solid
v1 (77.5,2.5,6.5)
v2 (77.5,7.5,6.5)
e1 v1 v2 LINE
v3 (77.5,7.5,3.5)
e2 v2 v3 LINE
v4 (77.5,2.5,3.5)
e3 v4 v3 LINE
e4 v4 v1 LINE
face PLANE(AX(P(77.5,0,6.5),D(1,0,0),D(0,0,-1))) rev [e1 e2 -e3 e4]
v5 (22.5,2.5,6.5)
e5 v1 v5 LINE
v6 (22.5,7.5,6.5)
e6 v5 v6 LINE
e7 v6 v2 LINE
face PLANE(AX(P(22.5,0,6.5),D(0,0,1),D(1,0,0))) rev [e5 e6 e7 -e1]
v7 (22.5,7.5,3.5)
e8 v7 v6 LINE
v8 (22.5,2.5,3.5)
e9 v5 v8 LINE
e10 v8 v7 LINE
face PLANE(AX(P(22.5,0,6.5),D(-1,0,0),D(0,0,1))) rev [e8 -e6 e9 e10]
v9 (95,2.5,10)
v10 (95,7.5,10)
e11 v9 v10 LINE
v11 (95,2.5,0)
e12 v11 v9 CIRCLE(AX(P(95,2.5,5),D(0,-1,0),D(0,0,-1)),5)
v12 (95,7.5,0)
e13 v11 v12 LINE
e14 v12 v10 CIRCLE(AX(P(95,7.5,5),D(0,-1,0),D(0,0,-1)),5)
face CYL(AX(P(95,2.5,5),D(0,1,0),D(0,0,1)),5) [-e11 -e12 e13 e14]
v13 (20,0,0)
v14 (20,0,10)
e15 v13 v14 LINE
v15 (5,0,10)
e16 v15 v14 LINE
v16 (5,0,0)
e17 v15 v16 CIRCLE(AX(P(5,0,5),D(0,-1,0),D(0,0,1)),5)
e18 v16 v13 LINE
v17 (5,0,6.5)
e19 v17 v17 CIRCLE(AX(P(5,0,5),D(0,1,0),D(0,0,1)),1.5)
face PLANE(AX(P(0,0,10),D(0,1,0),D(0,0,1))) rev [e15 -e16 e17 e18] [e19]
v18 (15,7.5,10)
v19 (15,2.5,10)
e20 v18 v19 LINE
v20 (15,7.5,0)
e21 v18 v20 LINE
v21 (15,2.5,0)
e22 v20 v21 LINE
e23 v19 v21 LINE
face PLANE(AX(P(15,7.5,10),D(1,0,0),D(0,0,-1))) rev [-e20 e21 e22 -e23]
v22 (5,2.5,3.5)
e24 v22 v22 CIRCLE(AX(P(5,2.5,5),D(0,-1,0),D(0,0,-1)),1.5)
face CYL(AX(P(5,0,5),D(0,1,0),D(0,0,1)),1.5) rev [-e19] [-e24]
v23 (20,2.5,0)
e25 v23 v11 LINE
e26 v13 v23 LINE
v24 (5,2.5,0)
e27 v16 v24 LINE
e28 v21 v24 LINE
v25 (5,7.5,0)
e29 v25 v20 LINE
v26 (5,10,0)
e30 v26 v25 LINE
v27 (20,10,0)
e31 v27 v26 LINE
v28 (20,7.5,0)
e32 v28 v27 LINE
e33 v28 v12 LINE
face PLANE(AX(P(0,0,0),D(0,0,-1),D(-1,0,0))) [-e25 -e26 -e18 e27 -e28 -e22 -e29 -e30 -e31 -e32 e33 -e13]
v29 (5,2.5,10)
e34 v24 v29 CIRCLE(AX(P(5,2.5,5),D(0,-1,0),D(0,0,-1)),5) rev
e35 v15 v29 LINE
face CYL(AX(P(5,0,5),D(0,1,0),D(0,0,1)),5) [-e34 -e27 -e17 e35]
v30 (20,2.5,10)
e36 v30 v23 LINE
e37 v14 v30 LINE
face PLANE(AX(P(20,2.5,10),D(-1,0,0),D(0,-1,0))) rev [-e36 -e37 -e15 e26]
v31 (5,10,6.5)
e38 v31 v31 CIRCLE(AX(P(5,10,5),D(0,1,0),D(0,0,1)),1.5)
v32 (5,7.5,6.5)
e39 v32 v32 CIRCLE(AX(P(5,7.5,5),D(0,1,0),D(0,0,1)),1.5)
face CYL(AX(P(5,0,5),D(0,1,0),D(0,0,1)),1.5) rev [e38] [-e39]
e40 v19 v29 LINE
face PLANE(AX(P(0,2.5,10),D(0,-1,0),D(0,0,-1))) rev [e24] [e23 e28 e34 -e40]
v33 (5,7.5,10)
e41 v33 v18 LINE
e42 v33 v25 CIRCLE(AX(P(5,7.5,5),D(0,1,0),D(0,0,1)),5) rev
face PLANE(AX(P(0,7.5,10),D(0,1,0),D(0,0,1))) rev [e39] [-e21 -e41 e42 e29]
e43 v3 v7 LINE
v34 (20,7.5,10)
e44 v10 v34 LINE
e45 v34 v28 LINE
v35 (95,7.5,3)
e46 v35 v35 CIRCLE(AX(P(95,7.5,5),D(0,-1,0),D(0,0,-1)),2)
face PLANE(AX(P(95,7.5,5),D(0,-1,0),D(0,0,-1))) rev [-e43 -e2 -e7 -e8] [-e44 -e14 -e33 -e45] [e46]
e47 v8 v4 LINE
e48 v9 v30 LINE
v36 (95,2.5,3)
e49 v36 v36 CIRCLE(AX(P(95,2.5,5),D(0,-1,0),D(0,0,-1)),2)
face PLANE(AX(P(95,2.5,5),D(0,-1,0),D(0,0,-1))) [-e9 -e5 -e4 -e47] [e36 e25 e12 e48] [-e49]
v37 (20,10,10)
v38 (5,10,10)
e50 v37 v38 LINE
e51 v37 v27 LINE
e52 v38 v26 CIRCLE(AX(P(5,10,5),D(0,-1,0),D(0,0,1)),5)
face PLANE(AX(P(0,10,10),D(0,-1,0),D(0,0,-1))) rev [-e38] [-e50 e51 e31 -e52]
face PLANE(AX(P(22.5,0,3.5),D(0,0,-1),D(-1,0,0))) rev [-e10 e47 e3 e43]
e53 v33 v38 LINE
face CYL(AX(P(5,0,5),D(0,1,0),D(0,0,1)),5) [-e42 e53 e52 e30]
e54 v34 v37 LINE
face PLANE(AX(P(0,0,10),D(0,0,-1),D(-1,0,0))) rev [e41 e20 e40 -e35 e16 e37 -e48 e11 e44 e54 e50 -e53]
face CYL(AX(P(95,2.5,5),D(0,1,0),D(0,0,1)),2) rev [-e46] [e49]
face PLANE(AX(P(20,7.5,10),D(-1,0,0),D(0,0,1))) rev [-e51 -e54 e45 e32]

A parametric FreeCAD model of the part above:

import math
import FreeCAD as App
import Part
import Sketcher

V = App.Vector


def add_polygon(sketch, points):
    """Adds a closed chain of lines whose ends are joined by coincident constraints."""
    first, n = sketch.GeometryCount, len(points)
    for a, b in zip(points, points[1:] + points[:1]):
        sketch.addGeometry(Part.LineSegment(App.Vector(*a, 0), App.Vector(*b, 0)), False)
    for i in range(n):
        sketch.addConstraint(Sketcher.Constraint("Coincident", first + i, 2, first + (i + 1) % n, 1))

doc = App.newDocument("Part")
params = doc.addObject("Spreadsheet::Sheet", "Params")
for row, (alias, value) in enumerate([
    ("sketch1_width", "105 mm"),
    ("sketch1_width2", "15 mm"),
    ("sketch1_height", "10 mm"),
    ("sketch1_height2", "5 mm"),
    ("pad1_length", "10 mm"),
    ("sketch2_diameter", "3 mm"),
    ("sketch2_radius", "5 mm"),
    ("sketch2_width", "55 mm"),
    ("sketch2_height", "3 mm"),
    ("pocket1_length", "10 mm"),
    ("sketch3_width", "15 mm"),
    ("sketch3_height", "2.5 mm"),
    ("pocket2_length", "10 mm"),
    ("sketch4_diameter", "3 mm"),
    ("sketch4_radius", "5 mm"),
    ("pocket3_length", "10 mm"),
    ("sketch5_radius", "5 mm"),
    ("pocket4_length", "10 mm"),
    ("sketch6_diameter", "4 mm"),
    ("sketch6_radius", "5 mm"),
    ("sketch6_width", "5 mm"),
    ("pad2_length", "5 mm"),
    ("sketch7_width", "70 mm"),
    ("pocket5_length", "10 mm"),
], start=1):
    params.set(f"A{row}", alias)
    params.set(f"B{row}", "=" + value)
    params.setAlias(f"B{row}", alias)

body = doc.addObject("PartDesign::Body", "Body")

sketch1 = body.newObject("Sketcher::SketchObject", "Sketch")
sketch1.AttachmentSupport = (doc.getObject("XY_Plane"), [""])
sketch1.MapMode = "FlatFace"
add_polygon(sketch1, [(0, 0), (105, 0), (105, 10), (0, 10), (0, 7.5), (15, 7.5), (15, 2.5), (0, 2.5)])
sketch1.addConstraint([
    Sketcher.Constraint("Horizontal", 0),
    Sketcher.Constraint("Vertical", 1),
    Sketcher.Constraint("Horizontal", 2),
    Sketcher.Constraint("Vertical", 3),
    Sketcher.Constraint("Horizontal", 4),
    Sketcher.Constraint("Vertical", 5),
    Sketcher.Constraint("Horizontal", 6),
    Sketcher.Constraint("Vertical", 7),
    Sketcher.Constraint("Coincident", 7, 2, -1, 1),
    Sketcher.Constraint("PointOnObject", 2, 2, -2),
    Sketcher.Constraint("Equal", 3, 7),
    Sketcher.Constraint("DistanceX", 0, 1, 0, 2, 105.0),
    Sketcher.Constraint("DistanceX", 4, 1, 4, 2, 15.0),
    Sketcher.Constraint("DistanceY", 1, 1, 1, 2, 10.0),
    Sketcher.Constraint("DistanceY", 5, 2, 5, 1, 5.0),
])
sketch1.setExpression("Constraints[19]", "Params.sketch1_width")
sketch1.setExpression("Constraints[20]", "Params.sketch1_width2")
sketch1.setExpression("Constraints[21]", "Params.sketch1_height")
sketch1.setExpression("Constraints[22]", "Params.sketch1_height2")
pad1 = body.newObject("PartDesign::Pad", "Pad")
pad1.Profile = sketch1
pad1.setExpression("Length", "Params.pad1_length")

sketch2 = body.newObject("Sketcher::SketchObject", "Sketch001")
sketch2.AttachmentSupport = (doc.getObject("XZ_Plane"), [""])
sketch2.MapMode = "FlatFace"
sketch2.AttachmentOffset = App.Placement(V(0, 0, -10), App.Rotation())
sketch2.addGeometry(Part.Circle(V(5, 5, 0), V(0, 0, 1), 1.5), False)
sketch2.addGeometry(Part.LineSegment(V(5, 0, 0), V(-4.031912, 0, 0)), False)
sketch2.addGeometry(Part.LineSegment(V(-4.031912, 0, 0), V(-4.031912, 10, 0)), False)
sketch2.addGeometry(Part.LineSegment(V(-4.031912, 10, 0), V(5, 10, 0)), False)
sketch2.addGeometry(Part.ArcOfCircle(Part.Circle(V(5, 5, 0), V(0, 0, 1), 5), math.radians(90), math.radians(270)), False)
add_polygon(sketch2, [(22.5, 3.5), (22.5, 6.5), (77.5, 6.5), (77.5, 3.5)])
sketch2.addConstraint([
    Sketcher.Constraint("Coincident", 1, 2, 2, 1),
    Sketcher.Constraint("Coincident", 2, 2, 3, 1),
    Sketcher.Constraint("Tangent", 3, 2, 4, 1),
    Sketcher.Constraint("Tangent", 4, 2, 1, 1),
    Sketcher.Constraint("Horizontal", 1),
    Sketcher.Constraint("Vertical", 2),
    Sketcher.Constraint("Horizontal", 3),
    Sketcher.Constraint("Vertical", 5),
    Sketcher.Constraint("Horizontal", 6),
    Sketcher.Constraint("Vertical", 7),
    Sketcher.Constraint("Horizontal", 8),
    Sketcher.Constraint("Coincident", 4, 3, 0, 3),
    Sketcher.Constraint("PointOnObject", 1, 2, -1),
    Sketcher.Constraint("Diameter", 0, 3.0),
    Sketcher.Constraint("Radius", 4, 5.0),
    Sketcher.Constraint("DistanceX", 6, 1, 6, 2, 55.0),
    Sketcher.Constraint("DistanceY", 5, 1, 5, 2, 3.0),
    Sketcher.Constraint("DistanceX", -1, 1, 0, 3, 5.0),
    Sketcher.Constraint("DistanceX", -1, 1, 5, 2, 22.5),
    Sketcher.Constraint("DistanceY", -1, 1, 5, 2, 6.5),
    Sketcher.Constraint("DistanceX", 1, 2, 1, 1, 9.031912),
])
sketch2.setExpression("Constraints[17]", "Params.sketch2_diameter")
sketch2.setExpression("Constraints[18]", "Params.sketch2_radius")
sketch2.setExpression("Constraints[19]", "Params.sketch2_width")
sketch2.setExpression("Constraints[20]", "Params.sketch2_height")
pocket1 = body.newObject("PartDesign::Pocket", "Pocket")
pocket1.Profile = sketch2
pocket1.setExpression("Length", "Params.pocket1_length")
pocket1.Reversed = True

sketch3 = body.newObject("Sketcher::SketchObject", "Sketch002")
sketch3.AttachmentSupport = (doc.getObject("XZ_Plane"), [""])
sketch3.MapMode = "FlatFace"
sketch3.AttachmentOffset = App.Placement(V(0, 0, -10), App.Rotation())
add_polygon(sketch3, [(90, 0), (90, 2.5), (105, 2.5), (105, 0)])
add_polygon(sketch3, [(90, 7.5), (90, 10), (105, 10), (105, 7.5)])
sketch3.addConstraint([
    Sketcher.Constraint("Vertical", 0),
    Sketcher.Constraint("Horizontal", 1),
    Sketcher.Constraint("Vertical", 2),
    Sketcher.Constraint("Horizontal", 3),
    Sketcher.Constraint("Vertical", 4),
    Sketcher.Constraint("Horizontal", 5),
    Sketcher.Constraint("Vertical", 6),
    Sketcher.Constraint("Horizontal", 7),
    Sketcher.Constraint("PointOnObject", 2, 2, -1),
    Sketcher.Constraint("Vertical", 3, 2, 4, 2),
    Sketcher.Constraint("Vertical", 2, 2, 5, 2),
    Sketcher.Constraint("Equal", 2, 4),
    Sketcher.Constraint("DistanceX", 1, 1, 1, 2, 15.0),
    Sketcher.Constraint("DistanceY", 0, 1, 0, 2, 2.5),
    Sketcher.Constraint("DistanceX", -1, 1, 0, 2, 90.0),
    Sketcher.Constraint("DistanceY", -1, 1, 4, 2, 10.0),
])
sketch3.setExpression("Constraints[20]", "Params.sketch3_width")
sketch3.setExpression("Constraints[21]", "Params.sketch3_height")
pocket2 = body.newObject("PartDesign::Pocket", "Pocket001")
pocket2.Profile = sketch3
pocket2.setExpression("Length", "Params.pocket2_length")
pocket2.Reversed = True

sketch4 = body.newObject("Sketcher::SketchObject", "Sketch003")
sketch4.AttachmentSupport = (doc.getObject("XY_Plane"), [""])
sketch4.MapMode = "FlatFace"
sketch4.AttachmentOffset = App.Placement(V(0, 0, 7.5), App.Rotation())
sketch4.addGeometry([
    Part.Circle(V(100, 5, 0), V(0, 0, 1), 1.5),
    Part.LineSegment(V(171.1124, 10, 0), V(100, 10, 0)),
    Part.ArcOfCircle(Part.Circle(V(100, 5, 0), V(0, 0, 1), 5), math.radians(-90), math.radians(90)),
    Part.LineSegment(V(100, 0, 0), V(171.1124, 0, 0)),
    Part.LineSegment(V(171.1124, 0, 0), V(171.1124, 10, 0)),
], False)
sketch4.addConstraint([
    Sketcher.Constraint("Tangent", 1, 2, 2, 2),
    Sketcher.Constraint("Tangent", 2, 1, 3, 1),
    Sketcher.Constraint("Coincident", 3, 2, 4, 1),
    Sketcher.Constraint("Coincident", 4, 2, 1, 1),
    Sketcher.Constraint("Horizontal", 1),
    Sketcher.Constraint("Horizontal", 3),
    Sketcher.Constraint("Vertical", 4),
    Sketcher.Constraint("Coincident", 2, 3, 0, 3),
    Sketcher.Constraint("PointOnObject", 2, 1, -1),
    Sketcher.Constraint("Diameter", 0, 3.0),
    Sketcher.Constraint("Radius", 2, 5.0),
    Sketcher.Constraint("DistanceX", -1, 1, 0, 3, 100.0),
    Sketcher.Constraint("DistanceX", 1, 2, 1, 1, 71.1124),
])
sketch4.setExpression("Constraints[9]", "Params.sketch4_diameter")
sketch4.setExpression("Constraints[10]", "Params.sketch4_radius")
pocket3 = body.newObject("PartDesign::Pocket", "Pocket002")
pocket3.Profile = sketch4
pocket3.setExpression("Length", "Params.pocket3_length")

sketch5 = body.newObject("Sketcher::SketchObject", "Sketch004")
sketch5.AttachmentSupport = (doc.getObject("XY_Plane"), [""])
sketch5.MapMode = "FlatFace"
sketch5.AttachmentOffset = App.Placement(V(0, 0, 7.5), App.Rotation())
sketch5.addGeometry([
    Part.LineSegment(V(90, 0, 0), V(100, 0, 0)),
    Part.ArcOfCircle(Part.Circle(V(100, 5, 0), V(0, 0, 1), 5), math.radians(-90), math.radians(90)),
    Part.LineSegment(V(100, 10, 0), V(90, 10, 0)),
    Part.LineSegment(V(90, 10, 0), V(90, 0, 0)),
], False)
sketch5.addConstraint([
    Sketcher.Constraint("Tangent", 0, 2, 1, 1),
    Sketcher.Constraint("Tangent", 1, 2, 2, 1),
    Sketcher.Constraint("Coincident", 2, 2, 3, 1),
    Sketcher.Constraint("Coincident", 3, 2, 0, 1),
    Sketcher.Constraint("Horizontal", 0),
    Sketcher.Constraint("Horizontal", 2),
    Sketcher.Constraint("Vertical", 3),
    Sketcher.Constraint("PointOnObject", 0, 2, -1),
    Sketcher.Constraint("Equal", 2, 3),
    Sketcher.Constraint("Radius", 1, 5.0),
    Sketcher.Constraint("DistanceX", -1, 1, 1, 3, 100.0),
])
sketch5.setExpression("Constraints[9]", "Params.sketch5_radius")
pocket4 = body.newObject("PartDesign::Pocket", "Pocket003")
pocket4.Profile = sketch5
pocket4.setExpression("Length", "Params.pocket4_length")

sketch6 = body.newObject("Sketcher::SketchObject", "Sketch005")
sketch6.AttachmentSupport = (doc.getObject("XZ_Plane"), [""])
sketch6.MapMode = "FlatFace"
sketch6.AttachmentOffset = App.Placement(V(0, 0, -5), App.Rotation())
sketch6.addGeometry([
    Part.LineSegment(V(95, 10, 0), V(90, 10, 0)),
    Part.LineSegment(V(90, 10, 0), V(90, 0, 0)),
    Part.LineSegment(V(90, 0, 0), V(95, 0, 0)),
    Part.ArcOfCircle(Part.Circle(V(95, 5, 0), V(0, 0, 1), 5), math.radians(-90), math.radians(90)),
    Part.Circle(V(95, 5, 0), V(0, 0, 1), 2),
], False)
sketch6.addConstraint([
    Sketcher.Constraint("Coincident", 0, 2, 1, 1),
    Sketcher.Constraint("Coincident", 1, 2, 2, 1),
    Sketcher.Constraint("Tangent", 2, 2, 3, 1),
    Sketcher.Constraint("Tangent", 3, 2, 0, 1),
    Sketcher.Constraint("Horizontal", 0),
    Sketcher.Constraint("Vertical", 1),
    Sketcher.Constraint("Horizontal", 2),
    Sketcher.Constraint("Coincident", 4, 3, 3, 3),
    Sketcher.Constraint("PointOnObject", 1, 2, -1),
    Sketcher.Constraint("Diameter", 4, 4.0),
    Sketcher.Constraint("Radius", 3, 5.0),
    Sketcher.Constraint("DistanceX", 0, 2, 0, 1, 5.0),
    Sketcher.Constraint("DistanceX", -1, 1, 3, 3, 95.0),
])
sketch6.setExpression("Constraints[9]", "Params.sketch6_diameter")
sketch6.setExpression("Constraints[10]", "Params.sketch6_radius")
sketch6.setExpression("Constraints[11]", "Params.sketch6_width")
pad2 = body.newObject("PartDesign::Pad", "Pad001")
pad2.Profile = sketch6
pad2.setExpression("Length", "Params.pad2_length")
pad2.Midplane = True

sketch7 = body.newObject("Sketcher::SketchObject", "Sketch006")
sketch7.AttachmentSupport = (doc.getObject("XY_Plane"), [""])
sketch7.MapMode = "FlatFace"
add_polygon(sketch7, [(90, 23.644584), (90, 7.5), (20, 7.5), (20, 23.644584)])
add_polygon(sketch7, [(90, 2.5), (90, -13.644584), (20, -13.644584), (20, 2.5)])
sketch7.addConstraint([
    Sketcher.Constraint("Vertical", 0),
    Sketcher.Constraint("Horizontal", 1),
    Sketcher.Constraint("Vertical", 2),
    Sketcher.Constraint("Horizontal", 3),
    Sketcher.Constraint("Vertical", 4),
    Sketcher.Constraint("Horizontal", 5),
    Sketcher.Constraint("Vertical", 6),
    Sketcher.Constraint("Horizontal", 7),
    Sketcher.Constraint("Vertical", 3, 2, 4, 2),
    Sketcher.Constraint("Vertical", 2, 2, 5, 2),
    Sketcher.Constraint("Equal", 2, 4),
    Sketcher.Constraint("DistanceX", 1, 2, 1, 1, 70.0),
    Sketcher.Constraint("DistanceX", -1, 1, 0, 2, 90.0),
    Sketcher.Constraint("DistanceY", 6, 2, 1, 2, 5.0),
    Sketcher.Constraint("DistanceY", -1, 1, 0, 2, 7.5),
    Sketcher.Constraint("DistanceY", 0, 2, 0, 1, 16.144584),
])
sketch7.setExpression("Constraints[19]", "Params.sketch7_width")
pocket5 = body.newObject("PartDesign::Pocket", "Pocket004")
pocket5.Profile = sketch7
pocket5.setExpression("Length", "Params.pocket5_length")
pocket5.Reversed = True

doc.recompute()
